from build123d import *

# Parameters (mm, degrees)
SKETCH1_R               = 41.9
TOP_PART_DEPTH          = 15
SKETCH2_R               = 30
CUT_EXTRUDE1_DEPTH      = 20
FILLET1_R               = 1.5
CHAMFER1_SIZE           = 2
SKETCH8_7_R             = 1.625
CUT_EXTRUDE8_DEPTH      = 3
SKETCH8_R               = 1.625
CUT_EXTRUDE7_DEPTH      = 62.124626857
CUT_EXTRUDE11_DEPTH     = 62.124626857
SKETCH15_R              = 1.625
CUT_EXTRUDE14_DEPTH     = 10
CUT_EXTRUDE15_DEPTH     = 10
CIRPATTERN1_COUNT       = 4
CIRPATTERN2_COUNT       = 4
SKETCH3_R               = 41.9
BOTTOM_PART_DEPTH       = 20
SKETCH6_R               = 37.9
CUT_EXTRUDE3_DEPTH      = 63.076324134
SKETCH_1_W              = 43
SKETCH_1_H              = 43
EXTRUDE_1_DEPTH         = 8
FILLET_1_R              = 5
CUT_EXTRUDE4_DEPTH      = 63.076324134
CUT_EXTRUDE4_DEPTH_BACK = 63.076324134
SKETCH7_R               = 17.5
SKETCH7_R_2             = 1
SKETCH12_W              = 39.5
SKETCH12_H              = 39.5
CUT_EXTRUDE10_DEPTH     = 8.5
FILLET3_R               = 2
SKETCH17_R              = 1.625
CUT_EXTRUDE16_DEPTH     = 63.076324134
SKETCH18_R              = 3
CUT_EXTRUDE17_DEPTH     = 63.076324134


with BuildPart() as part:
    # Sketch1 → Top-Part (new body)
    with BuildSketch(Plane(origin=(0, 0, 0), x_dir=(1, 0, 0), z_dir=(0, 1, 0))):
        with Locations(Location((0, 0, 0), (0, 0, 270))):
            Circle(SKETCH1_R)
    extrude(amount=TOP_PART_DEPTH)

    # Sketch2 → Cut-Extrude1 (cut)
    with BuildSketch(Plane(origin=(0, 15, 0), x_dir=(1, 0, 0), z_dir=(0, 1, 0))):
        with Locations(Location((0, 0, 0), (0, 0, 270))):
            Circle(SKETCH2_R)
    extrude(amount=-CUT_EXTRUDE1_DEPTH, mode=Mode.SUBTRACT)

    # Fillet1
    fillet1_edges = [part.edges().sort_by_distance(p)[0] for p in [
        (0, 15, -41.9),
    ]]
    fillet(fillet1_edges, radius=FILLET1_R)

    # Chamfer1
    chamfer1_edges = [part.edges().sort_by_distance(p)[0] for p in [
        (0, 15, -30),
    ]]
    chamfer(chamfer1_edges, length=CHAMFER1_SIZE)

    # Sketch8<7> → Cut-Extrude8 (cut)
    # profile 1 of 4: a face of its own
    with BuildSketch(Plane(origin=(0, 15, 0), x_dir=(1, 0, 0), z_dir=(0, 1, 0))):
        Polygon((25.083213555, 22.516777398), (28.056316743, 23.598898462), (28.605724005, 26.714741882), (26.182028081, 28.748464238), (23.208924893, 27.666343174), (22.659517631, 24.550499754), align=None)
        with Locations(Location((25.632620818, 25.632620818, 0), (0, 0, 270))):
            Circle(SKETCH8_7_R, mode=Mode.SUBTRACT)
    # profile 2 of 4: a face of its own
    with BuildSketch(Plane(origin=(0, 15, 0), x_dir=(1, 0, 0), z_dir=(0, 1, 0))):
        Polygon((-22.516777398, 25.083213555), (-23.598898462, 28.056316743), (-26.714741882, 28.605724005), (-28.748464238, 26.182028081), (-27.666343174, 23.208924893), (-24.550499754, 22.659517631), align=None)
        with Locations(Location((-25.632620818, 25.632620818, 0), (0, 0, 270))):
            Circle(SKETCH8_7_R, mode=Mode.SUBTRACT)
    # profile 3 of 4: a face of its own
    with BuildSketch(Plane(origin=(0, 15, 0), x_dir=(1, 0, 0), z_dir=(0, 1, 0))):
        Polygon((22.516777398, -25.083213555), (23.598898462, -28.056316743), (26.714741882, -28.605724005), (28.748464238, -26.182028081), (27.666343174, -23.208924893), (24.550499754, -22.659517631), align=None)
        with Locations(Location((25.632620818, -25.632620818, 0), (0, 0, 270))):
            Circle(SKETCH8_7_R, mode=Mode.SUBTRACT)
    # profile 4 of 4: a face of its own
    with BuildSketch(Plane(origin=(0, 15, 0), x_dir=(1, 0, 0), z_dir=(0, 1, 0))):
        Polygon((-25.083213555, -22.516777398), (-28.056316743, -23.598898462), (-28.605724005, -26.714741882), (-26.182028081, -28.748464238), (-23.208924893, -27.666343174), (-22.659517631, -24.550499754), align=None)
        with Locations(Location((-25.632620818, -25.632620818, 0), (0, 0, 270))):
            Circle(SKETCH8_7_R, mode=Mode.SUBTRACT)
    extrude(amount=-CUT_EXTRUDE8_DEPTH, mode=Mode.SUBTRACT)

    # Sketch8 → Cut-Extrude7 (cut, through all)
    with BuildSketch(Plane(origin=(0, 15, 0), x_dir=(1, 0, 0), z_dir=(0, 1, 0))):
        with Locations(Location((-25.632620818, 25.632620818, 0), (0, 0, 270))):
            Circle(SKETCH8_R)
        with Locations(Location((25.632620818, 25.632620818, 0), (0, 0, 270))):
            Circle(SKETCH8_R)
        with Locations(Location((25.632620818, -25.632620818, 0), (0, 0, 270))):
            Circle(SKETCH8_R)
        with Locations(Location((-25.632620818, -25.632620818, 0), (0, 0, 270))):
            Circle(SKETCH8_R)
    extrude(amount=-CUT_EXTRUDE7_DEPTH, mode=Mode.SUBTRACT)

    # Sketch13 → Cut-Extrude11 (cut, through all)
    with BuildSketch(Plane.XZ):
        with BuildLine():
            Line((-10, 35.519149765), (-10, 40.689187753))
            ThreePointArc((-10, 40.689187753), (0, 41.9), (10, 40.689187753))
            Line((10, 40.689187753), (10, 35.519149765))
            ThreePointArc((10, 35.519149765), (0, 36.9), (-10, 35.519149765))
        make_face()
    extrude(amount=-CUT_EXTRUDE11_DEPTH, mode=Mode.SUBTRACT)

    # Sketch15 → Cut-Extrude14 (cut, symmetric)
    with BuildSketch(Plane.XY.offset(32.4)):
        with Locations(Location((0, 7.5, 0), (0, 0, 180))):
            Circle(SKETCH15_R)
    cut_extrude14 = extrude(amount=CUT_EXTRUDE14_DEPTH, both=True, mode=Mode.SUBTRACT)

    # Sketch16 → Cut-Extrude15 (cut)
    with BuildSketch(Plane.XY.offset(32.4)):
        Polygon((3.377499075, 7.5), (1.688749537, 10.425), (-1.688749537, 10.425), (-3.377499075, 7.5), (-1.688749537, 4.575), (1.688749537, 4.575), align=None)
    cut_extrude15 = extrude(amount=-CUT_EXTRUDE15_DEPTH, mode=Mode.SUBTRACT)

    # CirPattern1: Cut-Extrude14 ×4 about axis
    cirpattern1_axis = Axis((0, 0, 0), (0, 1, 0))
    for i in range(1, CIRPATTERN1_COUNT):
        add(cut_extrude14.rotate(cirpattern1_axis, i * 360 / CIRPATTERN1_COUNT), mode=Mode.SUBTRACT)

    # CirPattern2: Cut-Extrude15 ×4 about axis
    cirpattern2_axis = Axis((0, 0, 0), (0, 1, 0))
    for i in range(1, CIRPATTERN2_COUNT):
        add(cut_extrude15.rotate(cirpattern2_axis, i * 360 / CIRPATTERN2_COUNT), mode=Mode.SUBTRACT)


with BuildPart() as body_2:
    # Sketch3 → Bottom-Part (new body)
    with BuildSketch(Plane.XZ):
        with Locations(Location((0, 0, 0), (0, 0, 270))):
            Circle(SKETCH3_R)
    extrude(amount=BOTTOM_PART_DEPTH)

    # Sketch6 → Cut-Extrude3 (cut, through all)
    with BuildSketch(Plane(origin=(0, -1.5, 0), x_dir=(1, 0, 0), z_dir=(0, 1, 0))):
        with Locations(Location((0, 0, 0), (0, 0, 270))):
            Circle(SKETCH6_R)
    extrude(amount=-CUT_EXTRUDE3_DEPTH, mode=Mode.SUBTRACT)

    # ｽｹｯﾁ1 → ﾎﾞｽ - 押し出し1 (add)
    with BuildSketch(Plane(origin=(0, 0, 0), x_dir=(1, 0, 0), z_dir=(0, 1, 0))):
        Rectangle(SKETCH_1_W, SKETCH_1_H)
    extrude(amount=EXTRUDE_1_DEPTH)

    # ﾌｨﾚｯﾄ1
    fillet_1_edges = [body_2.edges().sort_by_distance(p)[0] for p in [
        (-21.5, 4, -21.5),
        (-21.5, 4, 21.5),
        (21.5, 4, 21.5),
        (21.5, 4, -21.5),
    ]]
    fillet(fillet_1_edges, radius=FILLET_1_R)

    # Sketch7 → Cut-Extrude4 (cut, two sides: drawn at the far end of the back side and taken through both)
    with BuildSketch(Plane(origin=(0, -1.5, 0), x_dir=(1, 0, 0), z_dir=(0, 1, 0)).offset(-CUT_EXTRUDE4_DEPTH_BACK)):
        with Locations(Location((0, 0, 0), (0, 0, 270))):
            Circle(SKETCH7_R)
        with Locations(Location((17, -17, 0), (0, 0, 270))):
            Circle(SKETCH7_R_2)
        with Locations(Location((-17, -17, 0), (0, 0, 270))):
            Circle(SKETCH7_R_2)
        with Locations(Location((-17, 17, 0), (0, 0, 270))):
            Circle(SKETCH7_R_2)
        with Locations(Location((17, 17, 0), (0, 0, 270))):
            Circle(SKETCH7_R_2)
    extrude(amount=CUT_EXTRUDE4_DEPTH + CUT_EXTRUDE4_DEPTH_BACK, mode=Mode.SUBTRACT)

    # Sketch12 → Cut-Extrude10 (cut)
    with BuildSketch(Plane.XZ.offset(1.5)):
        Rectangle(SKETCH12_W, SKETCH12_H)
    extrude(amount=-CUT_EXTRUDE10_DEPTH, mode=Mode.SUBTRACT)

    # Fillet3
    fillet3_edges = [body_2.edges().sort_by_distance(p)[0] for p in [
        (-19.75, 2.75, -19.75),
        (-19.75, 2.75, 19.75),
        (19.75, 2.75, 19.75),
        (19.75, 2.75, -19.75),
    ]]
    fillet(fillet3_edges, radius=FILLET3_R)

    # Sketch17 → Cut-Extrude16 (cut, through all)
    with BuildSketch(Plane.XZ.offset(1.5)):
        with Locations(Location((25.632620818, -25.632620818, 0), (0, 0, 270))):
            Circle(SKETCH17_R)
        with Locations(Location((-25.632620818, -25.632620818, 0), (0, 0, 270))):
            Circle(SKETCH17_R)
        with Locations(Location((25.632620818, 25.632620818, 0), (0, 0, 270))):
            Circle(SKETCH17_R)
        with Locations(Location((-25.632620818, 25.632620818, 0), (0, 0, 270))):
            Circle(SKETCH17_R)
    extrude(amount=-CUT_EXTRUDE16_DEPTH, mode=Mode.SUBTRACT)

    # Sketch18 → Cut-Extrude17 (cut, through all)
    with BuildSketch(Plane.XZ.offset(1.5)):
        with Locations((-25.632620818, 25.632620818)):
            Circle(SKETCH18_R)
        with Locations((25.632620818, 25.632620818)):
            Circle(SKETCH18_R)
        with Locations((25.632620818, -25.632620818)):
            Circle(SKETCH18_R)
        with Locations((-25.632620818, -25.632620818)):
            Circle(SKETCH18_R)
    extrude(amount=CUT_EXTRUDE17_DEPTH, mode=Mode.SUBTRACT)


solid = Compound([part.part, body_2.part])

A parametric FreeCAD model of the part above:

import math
import FreeCAD as App
import Part
import Sketcher
from FreeCAD import Vector
Q = App.Units.Quantity


def edges_at(feature, points):
    """Names of the edges that pass closest to the given points."""
    edges = feature.Shape.Edges
    near = lambda p: min(range(len(edges)), key=lambda i: edges[i].distToShape(Part.Vertex(*p))[0])
    return sorted({f"Edge{near(p) + 1}" for p in points})


def add_polygon(sketch, points):
    """Adds a closed chain of lines whose ends are joined by coincident constraints."""
    first, n = sketch.GeometryCount, len(points)
    for a, b in zip(points, points[1:] + points[:1]):
        sketch.addGeometry(Part.LineSegment(App.Vector(*a, 0), App.Vector(*b, 0)), False)
    for i in range(n):
        sketch.addConstraint(Sketcher.Constraint("Coincident", first + i, 2, first + (i + 1) % n, 1))

doc = App.newDocument("Part")
params = doc.addObject("Spreadsheet::Sheet", "Params")
for row, (alias, value) in enumerate([
    ("sketch1_diameter", "83.8 mm"),
    ("pad1_length", "15 mm"),
    ("sketch2_diameter", "60 mm"),
    ("pocket1_length", "20 mm"),
    ("fillet_radius", "1.5 mm"),
    ("chamfer_size", "2 mm"),
    ("sketch3_diameter", "3.25 mm"),
    ("pocket2_length", "3 mm"),
    ("sketch4_diameter", "3.25 mm"),
    ("sketch5_radius", "36.9 mm"),
    ("sketch5_radius2", "41.9 mm"),
    ("sketch6_diameter", "3.25 mm"),
    ("pocket5_length", "20 mm"),
    ("pocket6_length", "10 mm"),
    ("sketch8_diameter", "83.8 mm"),
    ("pad2_length", "20 mm"),
    ("sketch9_diameter", "75.8 mm"),
    ("sketch10_width", "43 mm"),
    ("pad3_length", "8 mm"),
    ("fillet2_radius", "5 mm"),
    ("sketch11_diameter", "35 mm"),
    ("sketch11_diameter2", "2 mm"),
    ("sketch12_width", "39.5 mm"),
    ("pocket9_length", "8.5 mm"),
    ("fillet3_radius", "2 mm"),
    ("sketch13_diameter", "3.25 mm"),
    ("sketch14_diameter", "6 mm"),
], start=1):
    params.set(f"A{row}", alias)
    params.set(f"B{row}", "=" + value)
    params.setAlias(f"B{row}", alias)

body = doc.addObject("PartDesign::Body", "Body")

# Sketch on XZ plane
sketch1 = body.newObject("Sketcher::SketchObject", "Sketch")
sketch1.AttachmentSupport = (doc.getObject("XZ_Plane"), [""])
sketch1.MapMode = "FlatFace"
sketch1.addGeometry(Part.Circle(Vector(0, 0, 0), Vector(0, 0, 1), 42), False)
sketch1.addConstraint([
    Sketcher.Constraint("Coincident", 0, 3, -1, 1),
    Sketcher.Constraint("Diameter", 0, Q("83.8 mm")),
])
sketch1.setExpression("Constraints[1]", "Params.sketch1_diameter")
pad1 = body.newObject("PartDesign::Pad", "Pad")
pad1.Profile = sketch1
pad1.setExpression("Length", "Params.pad1_length")
pad1.Reversed = True

# Sketch on XZ plane
sketch2 = body.newObject("Sketcher::SketchObject", "Sketch001")
sketch2.AttachmentSupport = (doc.getObject("XZ_Plane"), [""])
sketch2.MapMode = "FlatFace"
sketch2.AttachmentOffset = App.Placement(Vector(0, 0, -15), App.Rotation())
sketch2.addGeometry(Part.Circle(Vector(0, 0, 0), Vector(0, 0, 1), 30), False)
sketch2.addConstraint([
    Sketcher.Constraint("Coincident", 0, 3, -1, 1),
    Sketcher.Constraint("Diameter", 0, Q("60 mm")),
])
sketch2.setExpression("Constraints[1]", "Params.sketch2_diameter")
pocket1 = body.newObject("PartDesign::Pocket", "Pocket")
pocket1.Profile = sketch2
pocket1.setExpression("Length", "Params.pocket1_length")
pocket1.Reversed = True
doc.recompute()

fillet = body.newObject("PartDesign::Fillet", "Fillet")
fillet.Base = (pocket1, edges_at(pocket1, [(0, 15, -41.9)]))
fillet.setExpression("Radius", "Params.fillet_radius")
doc.recompute()

chamfer = body.newObject("PartDesign::Chamfer", "Chamfer")
chamfer.Base = (fillet, edges_at(fillet, [(0, 15, -30)]))
chamfer.setExpression("Size", "Params.chamfer_size")

# Sketch on XZ plane
sketch3 = body.newObject("Sketcher::SketchObject", "Sketch002")
sketch3.AttachmentSupport = (doc.getObject("XZ_Plane"), [""])
sketch3.MapMode = "FlatFace"
sketch3.AttachmentOffset = App.Placement(Vector(0, 0, -15), App.Rotation())
add_polygon(sketch3, [(25.1, -22.5), (28.1, -23.6), (28.6, -26.7), (26.2, -28.7), (23.2, -27.7), (22.7, -24.6)])  # lines 0-5
sketch3.addGeometry(Part.Circle(Vector(25.6, -25.6, 0), Vector(0, 0, 1), 1.6), False)  # 6
add_polygon(sketch3, [(-22.5, -25.1), (-23.6, -28.1), (-26.7, -28.6), (-28.7, -26.2), (-27.7, -23.2), (-24.6, -22.7)])  # lines 7-12
sketch3.addGeometry(Part.Circle(Vector(-25.6, -25.6, 0), Vector(0, 0, 1), 1.6), False)  # 13
add_polygon(sketch3, [(22.5, 25.1), (23.6, 28.1), (26.7, 28.6), (28.7, 26.2), (27.7, 23.2), (24.6, 22.7)])  # lines 14-19
sketch3.addGeometry(Part.Circle(Vector(25.6, 25.6, 0), Vector(0, 0, 1), 1.6), False)  # 20
add_polygon(sketch3, [(-25.1, 22.5), (-28.1, 23.6), (-28.6, 26.7), (-26.2, 28.7), (-23.2, 27.7), (-22.7, 24.6)])  # lines 21-26
sketch3.addGeometry(Part.Circle(Vector(-25.6, 25.6, 0), Vector(0, 0, 1), 1.6), False)  # 27
sketch3.addConstraint([
    Sketcher.Constraint("Equal", 6, 13),
    Sketcher.Constraint("Equal", 13, 20),
    Sketcher.Constraint("Equal", 20, 27),
    Sketcher.Constraint("Symmetric", 13, 3, 20, 3, -1, 1),
    Sketcher.Constraint("Symmetric", 6, 3, 27, 3, -1, 1),
    Sketcher.Constraint("Symmetric", 7, 2, 14, 2, -1, 1),
    Sketcher.Constraint("Symmetric", 8, 2, 15, 2, -1, 1),
    Sketcher.Constraint("Symmetric", 9, 2, 16, 2, -1, 1),
    Sketcher.Constraint("Symmetric", 10, 2, 17, 2, -1, 1),
    Sketcher.Constraint("Symmetric", 11, 2, 18, 2, -1, 1),
    Sketcher.Constraint("Symmetric", 12, 2, 19, 2, -1, 1),
    Sketcher.Constraint("Symmetric", 0, 2, 21, 2, -1, 1),
    Sketcher.Constraint("Symmetric", 1, 2, 22, 2, -1, 1),
    Sketcher.Constraint("Symmetric", 2, 2, 23, 2, -1, 1),
    Sketcher.Constraint("Symmetric", 3, 2, 24, 2, -1, 1),
    Sketcher.Constraint("Symmetric", 4, 2, 25, 2, -1, 1),
    Sketcher.Constraint("Symmetric", 5, 2, 26, 2, -1, 1),
    Sketcher.Constraint("Symmetric", 6, 3, 13, 3, -2),
    Sketcher.Constraint("Parallel", 0, 3),
    Sketcher.Constraint("Parallel", 1, 4),
    Sketcher.Constraint("Parallel", 2, 5),
    Sketcher.Constraint("Perpendicular", 3, 7),
    Sketcher.Constraint("Perpendicular", 4, 8),
    Sketcher.Constraint("Perpendicular", 5, 9),
    Sketcher.Constraint("Parallel", 7, 10),
    Sketcher.Constraint("Parallel", 8, 11),
    Sketcher.Constraint("Parallel", 9, 12),
    Sketcher.Constraint("Equal", 0, 1),
    Sketcher.Constraint("Equal", 1, 2),
    Sketcher.Constraint("Equal", 2, 3),
    Sketcher.Constraint("Equal", 5, 7),
    Sketcher.Constraint("Equal", 7, 8),
    Sketcher.Constraint("Equal", 8, 9),
    Sketcher.Constraint("Equal", 9, 10),
    Sketcher.Constraint("Diameter", 6, Q("3.25 mm")),
    Sketcher.Constraint("Angle", 0, Q("-20 deg")),
    Sketcher.Constraint("Angle", 1, Q("-80 deg")),
    Sketcher.Constraint("Angle", 2, Q("-140 deg")),
    Sketcher.Constraint("DistanceY", 0, 2, -1, 1, Q("23.598898 mm")),
    Sketcher.Constraint("DistanceY", 4, 2, -1, 1, Q("24.5505 mm")),
    Sketcher.Constraint("DistanceX", 7, 2, -1, 1, Q("23.598898 mm")),
    Sketcher.Constraint("DistanceY", 5, 2, 15, 2, Q("51.122501 mm")),
    Sketcher.Constraint("DistanceX", 22, 2, 19, 2, Q("51.122501 mm")),
    Sketcher.Constraint("DistanceX", -1, 1, 6, 3, Q("25.632621 mm")),
    Sketcher.Constraint("DistanceY", 6, 3, -1, 1, Q("25.632621 mm")),
])
sketch3.setExpression("Constraints[58]", "Params.sketch3_diameter")
pocket2 = body.newObject("PartDesign::Pocket", "Pocket001")
pocket2.Profile = sketch3
pocket2.setExpression("Length", "Params.pocket2_length")
pocket2.Reversed = True

# Sketch on XZ plane
sketch4 = body.newObject("Sketcher::SketchObject", "Sketch003")
sketch4.AttachmentSupport = (doc.getObject("XZ_Plane"), [""])
sketch4.MapMode = "FlatFace"
sketch4.AttachmentOffset = App.Placement(Vector(0, 0, -15), App.Rotation())
sketch4.addGeometry([
    Part.Circle(Vector(-25.6, -25.6, 0), Vector(0, 0, 1), 1.6),
    Part.Circle(Vector(25.6, -25.6, 0), Vector(0, 0, 1), 1.6),
    Part.Circle(Vector(25.6, 25.6, 0), Vector(0, 0, 1), 1.6),
    Part.Circle(Vector(-25.6, 25.6, 0), Vector(0, 0, 1), 1.6),
], False)
sketch4.addConstraint([
    Sketcher.Constraint("Equal", 0, 1),
    Sketcher.Constraint("Equal", 1, 2),
    Sketcher.Constraint("Equal", 2, 3),
    Sketcher.Constraint("Symmetric", 0, 3, 2, 3, -1, 1),
    Sketcher.Constraint("Symmetric", 1, 3, 3, 3, -1, 1),
    Sketcher.Constraint("Symmetric", 0, 3, 1, 3, -2),
    Sketcher.Constraint("Diameter", 0, Q("3.25 mm")),
    Sketcher.Constraint("DistanceX", 0, 3, -1, 1, Q("25.632621 mm")),
    Sketcher.Constraint("DistanceY", 0, 3, -1, 1, Q("25.632621 mm")),
])
sketch4.setExpression("Constraints[6]", "Params.sketch4_diameter")
pocket3 = body.newObject("PartDesign::Pocket", "Pocket002")
pocket3.Profile = sketch4
pocket3.Type = "ThroughAll"
pocket3.Reversed = True

# Sketch on XZ plane
sketch5 = body.newObject("Sketcher::SketchObject", "Sketch004")
sketch5.AttachmentSupport = (doc.getObject("XZ_Plane"), [""])
sketch5.MapMode = "FlatFace"
sketch5.addGeometry([
    Part.LineSegment(Vector(-10, 41, 0), Vector(-10, 36, 0)),
    Part.ArcOfCircle(Part.Circle(Vector(0, 0, 0), Vector(0, 0, 1), 37), math.radians(74), math.radians(106)),
    Part.LineSegment(Vector(10, 36, 0), Vector(10, 41, 0)),
    Part.ArcOfCircle(Part.Circle(Vector(0, 0, 0), Vector(0, 0, 1), 42), math.radians(76), math.radians(104)),
], False)
sketch5.addConstraint([
    Sketcher.Constraint("Coincident", 0, 2, 1, 2),
    Sketcher.Constraint("Coincident", 1, 1, 2, 1),
    Sketcher.Constraint("Coincident", 2, 2, 3, 1),
    Sketcher.Constraint("Coincident", 3, 2, 0, 1),
    Sketcher.Constraint("Vertical", 0),
    Sketcher.Constraint("Vertical", 2),
    Sketcher.Constraint("Coincident", 1, 3, -1, 1),
    Sketcher.Constraint("Coincident", 3, 3, -1, 1),
    Sketcher.Constraint("Horizontal", 0, 2, 1, 1),
    Sketcher.Constraint("Radius", 1, Q("36.9 mm")),
    Sketcher.Constraint("Radius", 3, Q("41.9 mm")),
    Sketcher.Constraint("DistanceX", 0, 2, -1, 1, Q("10 mm")),
])
sketch5.setExpression("Constraints[9]", "Params.sketch5_radius")
sketch5.setExpression("Constraints[10]", "Params.sketch5_radius2")
pocket4 = body.newObject("PartDesign::Pocket", "Pocket003")
pocket4.Profile = sketch5
pocket4.Type = "ThroughAll"

# Sketch on XY plane
sketch6 = body.newObject("Sketcher::SketchObject", "Sketch005")
sketch6.AttachmentSupport = (doc.getObject("XY_Plane"), [""])
sketch6.MapMode = "FlatFace"
sketch6.AttachmentOffset = App.Placement(Vector(0, 0, 32.4), App.Rotation())
sketch6.addGeometry(Part.Circle(Vector(0, 7.5, 0), Vector(0, 0, 1), 1.6), False)
sketch6.addConstraint([
    Sketcher.Constraint("PointOnObject", 0, 3, -2),
    Sketcher.Constraint("Diameter", 0, Q("3.25 mm")),
    Sketcher.Constraint("DistanceY", -1, 1, 0, 3, Q("7.5 mm")),
])
sketch6.setExpression("Constraints[1]", "Params.sketch6_diameter")
pocket5 = body.newObject("PartDesign::Pocket", "Pocket004")
pocket5.Profile = sketch6
pocket5.setExpression("Length", "Params.pocket5_length")
pocket5.Midplane = True

# Sketch on XY plane
sketch7 = body.newObject("Sketcher::SketchObject", "Sketch006")
sketch7.AttachmentSupport = (doc.getObject("XY_Plane"), [""])
sketch7.MapMode = "FlatFace"
sketch7.AttachmentOffset = App.Placement(Vector(0, 0, 32.4), App.Rotation())
add_polygon(sketch7, [(3.4, 7.5), (1.7, 10.4), (-1.7, 10.4), (-3.4, 7.5), (-1.7, 4.6), (1.7, 4.6)])  # lines 0-5
sketch7.addConstraint([
    Sketcher.Constraint("Horizontal", 1),
    Sketcher.Constraint("Horizontal", 4),
    Sketcher.Constraint("Symmetric", 2, 2, 5, 2, -2),
    Sketcher.Constraint("Parallel", 0, 3),
    Sketcher.Constraint("Parallel", 2, 5),
    Sketcher.Constraint("Vertical", 1, 2, 3, 2),
    Sketcher.Constraint("Vertical", 0, 2, 4, 2),
    Sketcher.Constraint("Angle", 0, Q("120 deg")),
    Sketcher.Constraint("DistanceY", -1, 1, 2, 2, Q("7.5 mm")),
    Sketcher.Constraint("DistanceY", 3, 2, 1, 2, Q("5.85 mm")),
    Sketcher.Constraint("DistanceX", 1, 2, 1, 1, Q("3.377499 mm")),
])
pocket6 = body.newObject("PartDesign::Pocket", "Pocket005")
pocket6.Profile = sketch7
pocket6.setExpression("Length", "Params.pocket6_length")
doc.recompute()

polarpattern = body.newObject("PartDesign::PolarPattern", "PolarPattern")
polarpattern.Originals = [pocket5]
polarpattern.Axis = (doc.getObject("Y_Axis"), [""])
polarpattern.Angle = 360
polarpattern.Occurrences = 4
body.Tip = polarpattern
doc.recompute()

polarpattern2 = body.newObject("PartDesign::PolarPattern", "PolarPattern001")
polarpattern2.Originals = [pocket6]
polarpattern2.Axis = (doc.getObject("Y_Axis"), [""])
polarpattern2.Angle = 360
polarpattern2.Occurrences = 4
body.Tip = polarpattern2
body2 = doc.addObject("PartDesign::Body", "Body001")

# Sketch on XZ plane
sketch8 = body2.newObject("Sketcher::SketchObject", "Sketch007")
sketch8.AttachmentSupport = (doc.getObject("XZ_Plane001"), [""])
sketch8.MapMode = "FlatFace"
sketch8.addGeometry(Part.Circle(Vector(0, 0, 0), Vector(0, 0, 1), 42), False)
sketch8.addConstraint([
    Sketcher.Constraint("Coincident", 0, 3, -1, 1),
    Sketcher.Constraint("Diameter", 0, Q("83.8 mm")),
])
sketch8.setExpression("Constraints[1]", "Params.sketch8_diameter")
pad2 = body2.newObject("PartDesign::Pad", "Pad001")
pad2.Profile = sketch8
pad2.setExpression("Length", "Params.pad2_length")

# Sketch on XZ plane
sketch9 = body2.newObject("Sketcher::SketchObject", "Sketch008")
sketch9.AttachmentSupport = (doc.getObject("XZ_Plane001"), [""])
sketch9.MapMode = "FlatFace"
sketch9.AttachmentOffset = App.Placement(Vector(0, 0, 1.5), App.Rotation())
sketch9.addGeometry(Part.Circle(Vector(0, 0, 0), Vector(0, 0, 1), 38), False)
sketch9.addConstraint([
    Sketcher.Constraint("Coincident", 0, 3, -1, 1),
    Sketcher.Constraint("Diameter", 0, Q("75.8 mm")),
])
sketch9.setExpression("Constraints[1]", "Params.sketch9_diameter")
pocket7 = body2.newObject("PartDesign::Pocket", "Pocket006")
pocket7.Profile = sketch9
pocket7.Type = "ThroughAll"
pocket7.Reversed = True

# Sketch on XZ plane
sketch10 = body2.newObject("Sketcher::SketchObject", "Sketch009")
sketch10.AttachmentSupport = (doc.getObject("XZ_Plane001"), [""])
sketch10.MapMode = "FlatFace"
add_polygon(sketch10, [(-22, -22), (-22, 22), (22, 22), (22, -22)])  # lines 0-3
sketch10.addConstraint([
    Sketcher.Constraint("Vertical", 0),
    Sketcher.Constraint("Horizontal", 1),
    Sketcher.Constraint("Vertical", 2),
    Sketcher.Constraint("Horizontal", 3),
    Sketcher.Constraint("Symmetric", 0, 2, 2, 2, -1, 1),
    Sketcher.Constraint("Equal", 3, 0),
    Sketcher.Constraint("DistanceX", 1, 1, 1, 2, Q("43 mm")),
])
sketch10.setExpression("Constraints[10]", "Params.sketch10_width")
pad3 = body2.newObject("PartDesign::Pad", "Pad002")
pad3.Profile = sketch10
pad3.setExpression("Length", "Params.pad3_length")
pad3.Reversed = True
doc.recompute()

fillet2 = body2.newObject("PartDesign::Fillet", "Fillet001")
fillet2.Base = (pad3, edges_at(pad3, [
    (-21.5, 4, -21.5),
    (-21.5, 4, 21.5),
    (21.5, 4, 21.5),
    (21.5, 4, -21.5),
]))
fillet2.setExpression("Radius", "Params.fillet2_radius")

# Sketch on XZ plane
sketch11 = body2.newObject("Sketcher::SketchObject", "Sketch010")
sketch11.AttachmentSupport = (doc.getObject("XZ_Plane001"), [""])
sketch11.MapMode = "FlatFace"
sketch11.AttachmentOffset = App.Placement(Vector(0, 0, 1.5), App.Rotation())
sketch11.addGeometry([
    Part.Circle(Vector(0, 0, 0), Vector(0, 0, 1), 17.5),  # 0
    Part.Circle(Vector(17, 17, 0), Vector(0, 0, 1), 1),  # 1
    Part.Circle(Vector(-17, 17, 0), Vector(0, 0, 1), 1),  # 2
    Part.Circle(Vector(-17, -17, 0), Vector(0, 0, 1), 1),  # 3
    Part.Circle(Vector(17, -17, 0), Vector(0, 0, 1), 1),  # 4
], False)
sketch11.addConstraint([
    Sketcher.Constraint("Coincident", 0, 3, -1, 1),
    Sketcher.Constraint("Equal", 1, 2),
    Sketcher.Constraint("Equal", 2, 3),
    Sketcher.Constraint("Equal", 3, 4),
    Sketcher.Constraint("Symmetric", 1, 3, 3, 3, -1, 1),
    Sketcher.Constraint("Symmetric", 2, 3, 4, 3, -1, 1),
    Sketcher.Constraint("Symmetric", 1, 3, 2, 3, -2),
    Sketcher.Constraint("Diameter", 0, Q("35 mm")),
    Sketcher.Constraint("Diameter", 1, Q("2 mm")),
    Sketcher.Constraint("DistanceX", -1, 1, 1, 3, Q("17 mm")),
    Sketcher.Constraint("DistanceY", -1, 1, 1, 3, Q("17 mm")),
])
sketch11.setExpression("Constraints[7]", "Params.sketch11_diameter")
sketch11.setExpression("Constraints[8]", "Params.sketch11_diameter2")
pocket8 = body2.newObject("PartDesign::Pocket", "Pocket007")
pocket8.Profile = sketch11
pocket8.Type = "ThroughAll"
pocket8.Midplane = True

# Sketch on XZ plane
sketch12 = body2.newObject("Sketcher::SketchObject", "Sketch011")
sketch12.AttachmentSupport = (doc.getObject("XZ_Plane001"), [""])
sketch12.MapMode = "FlatFace"
sketch12.AttachmentOffset = App.Placement(Vector(0, 0, 1.5), App.Rotation())
add_polygon(sketch12, [(-20, 20), (-20, -20), (20, -20), (20, 20)])  # lines 0-3
sketch12.addConstraint([
    Sketcher.Constraint("Vertical", 0),
    Sketcher.Constraint("Horizontal", 1),
    Sketcher.Constraint("Vertical", 2),
    Sketcher.Constraint("Horizontal", 3),
    Sketcher.Constraint("Symmetric", 0, 2, 2, 2, -1, 1),
    Sketcher.Constraint("Equal", 3, 0),
    Sketcher.Constraint("DistanceX", 1, 1, 1, 2, Q("39.5 mm")),
])
sketch12.setExpression("Constraints[10]", "Params.sketch12_width")
pocket9 = body2.newObject("PartDesign::Pocket", "Pocket008")
pocket9.Profile = sketch12
pocket9.setExpression("Length", "Params.pocket9_length")
doc.recompute()

fillet3 = body2.newObject("PartDesign::Fillet", "Fillet002")
fillet3.Base = (pocket9, edges_at(pocket9, [
    (-19.75, 2.75, -19.75),
    (-19.75, 2.75, 19.75),
    (19.75, 2.75, 19.75),
    (19.75, 2.75, -19.75),
]))
fillet3.setExpression("Radius", "Params.fillet3_radius")

# Sketch on XZ plane
sketch13 = body2.newObject("Sketcher::SketchObject", "Sketch012")
sketch13.AttachmentSupport = (doc.getObject("XZ_Plane001"), [""])
sketch13.MapMode = "FlatFace"
sketch13.AttachmentOffset = App.Placement(Vector(0, 0, 1.5), App.Rotation())
sketch13.addGeometry([
    Part.Circle(Vector(25.6, -25.6, 0), Vector(0, 0, 1), 1.6),
    Part.Circle(Vector(-25.6, -25.6, 0), Vector(0, 0, 1), 1.6),
    Part.Circle(Vector(25.6, 25.6, 0), Vector(0, 0, 1), 1.6),
    Part.Circle(Vector(-25.6, 25.6, 0), Vector(0, 0, 1), 1.6),
], False)
sketch13.addConstraint([
    Sketcher.Constraint("Equal", 0, 1),
    Sketcher.Constraint("Equal", 1, 2),
    Sketcher.Constraint("Equal", 2, 3),
    Sketcher.Constraint("Symmetric", 1, 3, 2, 3, -1, 1),
    Sketcher.Constraint("Symmetric", 0, 3, 3, 3, -1, 1),
    Sketcher.Constraint("Symmetric", 0, 3, 1, 3, -2),
    Sketcher.Constraint("Diameter", 0, Q("3.25 mm")),
    Sketcher.Constraint("DistanceX", -1, 1, 0, 3, Q("25.632621 mm")),
    Sketcher.Constraint("DistanceY", 0, 3, -1, 1, Q("25.632621 mm")),
])
sketch13.setExpression("Constraints[6]", "Params.sketch13_diameter")
pocket10 = body2.newObject("PartDesign::Pocket", "Pocket009")
pocket10.Profile = sketch13
pocket10.Type = "ThroughAll"

# Sketch on XZ plane
sketch14 = body2.newObject("Sketcher::SketchObject", "Sketch013")
sketch14.AttachmentSupport = (doc.getObject("XZ_Plane001"), [""])
sketch14.MapMode = "FlatFace"
sketch14.AttachmentOffset = App.Placement(Vector(0, 0, 1.5), App.Rotation())
sketch14.addGeometry([
    Part.Circle(Vector(-25.6, 25.6, 0), Vector(0, 0, 1), 3),
    Part.Circle(Vector(25.6, 25.6, 0), Vector(0, 0, 1), 3),
    Part.Circle(Vector(25.6, -25.6, 0), Vector(0, 0, 1), 3),
    Part.Circle(Vector(-25.6, -25.6, 0), Vector(0, 0, 1), 3),
], False)
sketch14.addConstraint([
    Sketcher.Constraint("Equal", 0, 1),
    Sketcher.Constraint("Equal", 1, 2),
    Sketcher.Constraint("Equal", 2, 3),
    Sketcher.Constraint("Symmetric", 0, 3, 2, 3, -1, 1),
    Sketcher.Constraint("Symmetric", 1, 3, 3, 3, -1, 1),
    Sketcher.Constraint("Symmetric", 0, 3, 1, 3, -2),
    Sketcher.Constraint("Diameter", 0, Q("6 mm")),
    Sketcher.Constraint("DistanceX", 0, 3, -1, 1, Q("25.632621 mm")),
    Sketcher.Constraint("DistanceY", -1, 1, 0, 3, Q("25.632621 mm")),
])
sketch14.setExpression("Constraints[6]", "Params.sketch14_diameter")
pocket11 = body2.newObject("PartDesign::Pocket", "Pocket010")
pocket11.Profile = sketch14
pocket11.Type = "ThroughAll"
pocket11.Reversed = True

doc.recompute()
